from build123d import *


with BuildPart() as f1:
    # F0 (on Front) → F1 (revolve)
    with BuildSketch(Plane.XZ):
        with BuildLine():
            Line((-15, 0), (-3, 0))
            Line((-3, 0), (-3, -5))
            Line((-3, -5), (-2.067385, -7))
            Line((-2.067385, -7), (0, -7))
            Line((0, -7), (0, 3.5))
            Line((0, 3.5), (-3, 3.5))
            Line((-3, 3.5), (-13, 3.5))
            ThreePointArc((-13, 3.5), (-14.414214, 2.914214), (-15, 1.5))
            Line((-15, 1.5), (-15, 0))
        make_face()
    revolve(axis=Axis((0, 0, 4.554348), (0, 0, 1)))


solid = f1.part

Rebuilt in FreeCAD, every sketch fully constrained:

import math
import FreeCAD as App
import Part
import Sketcher
Q = App.Units.Quantity

doc = App.newDocument("Part")
body = doc.addObject("PartDesign::Body", "Body")

sketch1 = body.newObject("Sketcher::SketchObject", "Sketch")
sketch1.AttachmentSupport = (doc.getObject("XZ_Plane"), [""])
sketch1.MapMode = "FlatFace"
sketch1.addGeometry([
    Part.LineSegment(App.Vector(-15, 0, 0), App.Vector(-3, 0, 0)),
    Part.LineSegment(App.Vector(-3, 0, 0), App.Vector(-3, -5, 0)),
    Part.LineSegment(App.Vector(-3, -5, 0), App.Vector(-2.067385, -7, 0)),
    Part.LineSegment(App.Vector(-2.067385, -7, 0), App.Vector(0, -7, 0)),
    Part.LineSegment(App.Vector(0, -7, 0), App.Vector(0, 3.5, 0)),
    Part.LineSegment(App.Vector(0, 3.5, 0), App.Vector(-13, 3.5, 0)),
    Part.ArcOfCircle(Part.Circle(App.Vector(-13.000001, 1.500001, 0), App.Vector(0, 0, 1), 1.999999), math.radians(89.999957), math.radians(180.000043)),
    Part.LineSegment(App.Vector(-15, 1.5, 0), App.Vector(-15, 0, 0)),
], False)
sketch1.addConstraint([
    Sketcher.Constraint("Coincident", 0, 2, 1, 1),
    Sketcher.Constraint("Coincident", 1, 2, 2, 1),
    Sketcher.Constraint("Coincident", 2, 2, 3, 1),
    Sketcher.Constraint("Coincident", 3, 2, 4, 1),
    Sketcher.Constraint("Coincident", 4, 2, 5, 1),
    Sketcher.Constraint("Tangent", 5, 2, 6, 1),
    Sketcher.Constraint("Tangent", 6, 2, 7, 1),
    Sketcher.Constraint("Coincident", 7, 2, 0, 1),
    Sketcher.Constraint("Horizontal", 0),
    Sketcher.Constraint("Vertical", 1),
    Sketcher.Constraint("Horizontal", 3),
    Sketcher.Constraint("Vertical", 4),
    Sketcher.Constraint("Horizontal", 5),
    Sketcher.Constraint("Vertical", 7),
    Sketcher.Constraint("PointOnObject", 0, 2, -1),
    Sketcher.Constraint("PointOnObject", 3, 2, -2),
    Sketcher.Constraint("Radius", 6, Q("1.999999 mm")),
    Sketcher.Constraint("DistanceX", 0, 1, 0, 2, Q("12 mm")),
    Sketcher.Constraint("DistanceX", 5, 2, 5, 1, Q("13 mm")),
    Sketcher.Constraint("DistanceY", 1, 2, 1, 1, Q("5 mm")),
    Sketcher.Constraint("Angle", 2, Q("-65.000007 deg")),
    Sketcher.Constraint("DistanceY", 4, 1, 4, 2, Q("10.5 mm")),
    Sketcher.Constraint("DistanceY", 7, 2, 7, 1, Q("1.5 mm")),
])
revolution = body.newObject("PartDesign::Revolution", "Revolution")
revolution.Profile = sketch1
revolution.ReferenceAxis = (sketch1, ["V_Axis"])
revolution.Angle = 360

doc.recompute()
